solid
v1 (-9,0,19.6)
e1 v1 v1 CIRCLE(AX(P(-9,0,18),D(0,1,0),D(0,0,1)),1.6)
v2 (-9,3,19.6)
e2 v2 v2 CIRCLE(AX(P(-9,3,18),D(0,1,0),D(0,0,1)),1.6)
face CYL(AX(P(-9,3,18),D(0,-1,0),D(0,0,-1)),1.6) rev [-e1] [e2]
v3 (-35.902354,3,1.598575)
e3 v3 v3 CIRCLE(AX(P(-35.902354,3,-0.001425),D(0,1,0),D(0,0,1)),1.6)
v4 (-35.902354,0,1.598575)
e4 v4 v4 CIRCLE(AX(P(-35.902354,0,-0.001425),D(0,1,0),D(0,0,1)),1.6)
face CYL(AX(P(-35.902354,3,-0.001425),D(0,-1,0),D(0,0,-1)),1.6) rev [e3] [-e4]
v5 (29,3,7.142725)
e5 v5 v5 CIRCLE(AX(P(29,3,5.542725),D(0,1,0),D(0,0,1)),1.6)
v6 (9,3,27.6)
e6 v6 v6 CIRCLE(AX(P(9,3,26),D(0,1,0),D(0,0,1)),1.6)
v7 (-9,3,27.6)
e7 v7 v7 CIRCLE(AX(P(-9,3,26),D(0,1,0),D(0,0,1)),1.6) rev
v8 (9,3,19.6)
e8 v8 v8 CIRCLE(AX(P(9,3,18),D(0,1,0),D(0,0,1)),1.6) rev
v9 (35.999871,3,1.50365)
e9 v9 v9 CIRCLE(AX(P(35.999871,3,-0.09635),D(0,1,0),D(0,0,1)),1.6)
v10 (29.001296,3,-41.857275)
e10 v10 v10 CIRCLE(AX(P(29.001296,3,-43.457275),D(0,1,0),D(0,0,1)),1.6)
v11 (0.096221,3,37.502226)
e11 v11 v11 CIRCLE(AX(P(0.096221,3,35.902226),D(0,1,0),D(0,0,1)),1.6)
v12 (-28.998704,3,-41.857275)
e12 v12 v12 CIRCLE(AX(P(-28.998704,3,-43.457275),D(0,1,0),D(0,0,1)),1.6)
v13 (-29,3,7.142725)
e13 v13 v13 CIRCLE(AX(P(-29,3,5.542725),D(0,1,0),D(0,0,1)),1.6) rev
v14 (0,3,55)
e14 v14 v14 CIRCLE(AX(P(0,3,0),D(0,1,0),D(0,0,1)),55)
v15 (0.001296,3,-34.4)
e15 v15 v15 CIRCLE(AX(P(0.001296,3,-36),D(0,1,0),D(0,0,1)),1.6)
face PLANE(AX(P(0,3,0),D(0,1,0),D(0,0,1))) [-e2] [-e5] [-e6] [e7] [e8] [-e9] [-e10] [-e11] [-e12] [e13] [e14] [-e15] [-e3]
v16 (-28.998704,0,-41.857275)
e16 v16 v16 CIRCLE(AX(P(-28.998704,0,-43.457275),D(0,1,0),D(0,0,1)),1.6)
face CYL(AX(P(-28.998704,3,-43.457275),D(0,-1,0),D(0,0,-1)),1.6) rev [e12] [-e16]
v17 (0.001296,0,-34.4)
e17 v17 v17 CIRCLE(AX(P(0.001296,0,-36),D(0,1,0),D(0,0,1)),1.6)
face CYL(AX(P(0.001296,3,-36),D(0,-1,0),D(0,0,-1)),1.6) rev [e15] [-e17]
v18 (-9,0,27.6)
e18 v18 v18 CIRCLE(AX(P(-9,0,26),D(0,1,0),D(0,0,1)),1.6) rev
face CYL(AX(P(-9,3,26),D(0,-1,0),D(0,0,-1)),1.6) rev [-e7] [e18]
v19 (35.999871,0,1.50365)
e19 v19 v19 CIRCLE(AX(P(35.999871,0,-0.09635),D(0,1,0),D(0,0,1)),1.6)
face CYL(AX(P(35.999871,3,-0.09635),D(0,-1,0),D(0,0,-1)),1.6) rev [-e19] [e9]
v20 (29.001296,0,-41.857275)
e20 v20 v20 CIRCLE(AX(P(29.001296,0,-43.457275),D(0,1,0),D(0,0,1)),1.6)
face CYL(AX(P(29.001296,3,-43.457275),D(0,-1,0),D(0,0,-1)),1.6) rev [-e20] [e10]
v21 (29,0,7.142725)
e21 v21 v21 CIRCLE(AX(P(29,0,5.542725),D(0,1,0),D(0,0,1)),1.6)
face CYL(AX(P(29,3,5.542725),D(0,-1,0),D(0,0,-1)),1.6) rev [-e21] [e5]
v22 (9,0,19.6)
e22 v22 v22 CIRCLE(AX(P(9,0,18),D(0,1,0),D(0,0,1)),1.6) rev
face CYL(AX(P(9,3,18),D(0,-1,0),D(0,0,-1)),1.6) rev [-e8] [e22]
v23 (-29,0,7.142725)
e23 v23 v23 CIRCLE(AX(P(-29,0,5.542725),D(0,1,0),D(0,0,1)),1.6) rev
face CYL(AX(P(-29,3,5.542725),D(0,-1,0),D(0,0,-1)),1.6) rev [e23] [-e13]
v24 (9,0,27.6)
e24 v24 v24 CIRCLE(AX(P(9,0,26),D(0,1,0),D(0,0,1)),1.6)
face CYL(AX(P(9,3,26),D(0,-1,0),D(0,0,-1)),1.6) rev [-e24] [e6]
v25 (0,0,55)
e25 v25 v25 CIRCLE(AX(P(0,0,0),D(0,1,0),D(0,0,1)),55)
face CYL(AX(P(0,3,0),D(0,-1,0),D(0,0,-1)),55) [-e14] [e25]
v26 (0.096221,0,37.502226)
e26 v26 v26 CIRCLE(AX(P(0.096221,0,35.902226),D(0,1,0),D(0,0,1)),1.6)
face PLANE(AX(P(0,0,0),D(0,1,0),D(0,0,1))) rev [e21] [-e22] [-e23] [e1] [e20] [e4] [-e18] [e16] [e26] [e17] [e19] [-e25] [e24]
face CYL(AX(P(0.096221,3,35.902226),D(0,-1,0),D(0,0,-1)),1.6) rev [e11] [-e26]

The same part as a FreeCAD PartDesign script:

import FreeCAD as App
import Part
import Sketcher

doc = App.newDocument("Part")
body = doc.addObject("PartDesign::Body", "Body")

# Sketch on XZ plane
sketch1 = doc.addObject("Sketcher::SketchObject", "Sketch")
body.addObject(sketch1)
sketch1.AttachmentSupport = (doc.XZ_Plane, [""])
sketch1.MapMode = "FlatFace"
sketch1.addGeometry(Part.Circle(App.Vector(0, 0, 0), App.Vector(0, 0, 1), 55), False)
sketch1.addGeometry(Part.Circle(App.Vector(-29, -43.5, 0), App.Vector(0, 0, 1), 1.6), False)
sketch1.addGeometry(Part.Circle(App.Vector(0, -36, 0), App.Vector(0, 0, 1), 1.6), False)
sketch1.addGeometry(Part.Circle(App.Vector(-35.9, 0, 0), App.Vector(0, 0, 1), 1.6), False)
sketch1.addGeometry(Part.Circle(App.Vector(-29, 5.5, 0), App.Vector(0, 0, 1), 1.6), False)
sketch1.addGeometry(Part.Circle(App.Vector(-9, 18, 0), App.Vector(0, 0, 1), 1.6), False)
sketch1.addGeometry(Part.Circle(App.Vector(-9, 26, 0), App.Vector(0, 0, 1), 1.6), False)
sketch1.addGeometry(Part.Circle(App.Vector(29, -43.5, 0), App.Vector(0, 0, 1), 1.6), False)
sketch1.addGeometry(Part.Circle(App.Vector(9, 18, 0), App.Vector(0, 0, 1), 1.6), False)
sketch1.addGeometry(Part.Circle(App.Vector(9, 26, 0), App.Vector(0, 0, 1), 1.6), False)
sketch1.addGeometry(Part.Circle(App.Vector(0.1, 35.9, 0), App.Vector(0, 0, 1), 1.6), False)
sketch1.addGeometry(Part.Circle(App.Vector(29, 5.5, 0), App.Vector(0, 0, 1), 1.6), False)
sketch1.addGeometry(Part.Circle(App.Vector(36, -0.1, 0), App.Vector(0, 0, 1), 1.6), False)
sketch1.addConstraint(Sketcher.Constraint("Coincident", 0, 3, -1, 1))
sketch1.addConstraint(Sketcher.Constraint("Equal", 1, 2))
sketch1.addConstraint(Sketcher.Constraint("Equal", 2, 3))
sketch1.addConstraint(Sketcher.Constraint("Equal", 3, 4))
sketch1.addConstraint(Sketcher.Constraint("Equal", 4, 5))
sketch1.addConstraint(Sketcher.Constraint("Equal", 5, 6))
sketch1.addConstraint(Sketcher.Constraint("Equal", 6, 7))
sketch1.addConstraint(Sketcher.Constraint("Equal", 7, 8))
sketch1.addConstraint(Sketcher.Constraint("Equal", 8, 9))
sketch1.addConstraint(Sketcher.Constraint("Equal", 9, 10))
sketch1.addConstraint(Sketcher.Constraint("Equal", 10, 11))
sketch1.addConstraint(Sketcher.Constraint("Equal", 11, 12))
sketch1.addConstraint(Sketcher.Constraint("Symmetric", 5, 3, 8, 3, -2))
sketch1.addConstraint(Sketcher.Constraint("Symmetric", 6, 3, 9, 3, -2))
sketch1.addConstraint(Sketcher.Constraint("Symmetric", 4, 3, 11, 3, -2))
sketch1.addConstraint(Sketcher.Constraint("Horizontal", 1, 3, 7, 3))
sketch1.addConstraint(Sketcher.Constraint("Vertical", 5, 3, 6, 3))
sketch1.addConstraint(Sketcher.Constraint("Diameter", 0, 110.0))
sketch1.addConstraint(Sketcher.Constraint("Diameter", 1, 3.2))
sketch1.addConstraint(Sketcher.Constraint("DistanceY", 2, 3, -1, 1, 36.0))
sketch1.addConstraint(Sketcher.Constraint("DistanceX", 4, 3, -1, 1, 29.0))
sketch1.addConstraint(Sketcher.Constraint("DistanceX", 5, 3, -1, 1, 9.0))
sketch1.addConstraint(Sketcher.Constraint("DistanceY", -1, 1, 5, 3, 18.0))
sketch1.addConstraint(Sketcher.Constraint("DistanceY", -1, 1, 6, 3, 26.0))
sketch1.addConstraint(Sketcher.Constraint("DistanceX", 1, 3, 2, 3, 29.0))
sketch1.addConstraint(Sketcher.Constraint("DistanceY", 1, 3, 4, 3, 49.0))
sketch1.addConstraint(Sketcher.Constraint("DistanceX", 2, 3, 7, 3, 29.0))
sketch1.addConstraint(Sketcher.Constraint("DistanceY", 11, 3, 10, 3, 30.359501))
sketch1.addConstraint(Sketcher.Constraint("DistanceX", -1, 1, 10, 3, 0.096221))
sketch1.addConstraint(Sketcher.Constraint("DistanceX", -1, 1, 12, 3, 35.999871))
sketch1.addConstraint(Sketcher.Constraint("DistanceY", 12, 3, -1, 1, 0.09635))
sketch1.addConstraint(Sketcher.Constraint("DistanceX", 3, 3, 1, 3, 6.90365))
sketch1.addConstraint(Sketcher.Constraint("DistanceY", 1, 3, 3, 3, 43.455851))
sketch1.addConstraint(Sketcher.Constraint("DistanceX", 1, 3, -1, 1, 28.998704))
sketch1.addConstraint(Sketcher.Constraint("DistanceY", 1, 3, -1, 1, 43.457275))
pad1 = doc.addObject("PartDesign::Pad", "Pad")
body.addObject(pad1)
pad1.Profile = sketch1
pad1.Length = 3
pad1.Reversed = True

doc.recompute()
